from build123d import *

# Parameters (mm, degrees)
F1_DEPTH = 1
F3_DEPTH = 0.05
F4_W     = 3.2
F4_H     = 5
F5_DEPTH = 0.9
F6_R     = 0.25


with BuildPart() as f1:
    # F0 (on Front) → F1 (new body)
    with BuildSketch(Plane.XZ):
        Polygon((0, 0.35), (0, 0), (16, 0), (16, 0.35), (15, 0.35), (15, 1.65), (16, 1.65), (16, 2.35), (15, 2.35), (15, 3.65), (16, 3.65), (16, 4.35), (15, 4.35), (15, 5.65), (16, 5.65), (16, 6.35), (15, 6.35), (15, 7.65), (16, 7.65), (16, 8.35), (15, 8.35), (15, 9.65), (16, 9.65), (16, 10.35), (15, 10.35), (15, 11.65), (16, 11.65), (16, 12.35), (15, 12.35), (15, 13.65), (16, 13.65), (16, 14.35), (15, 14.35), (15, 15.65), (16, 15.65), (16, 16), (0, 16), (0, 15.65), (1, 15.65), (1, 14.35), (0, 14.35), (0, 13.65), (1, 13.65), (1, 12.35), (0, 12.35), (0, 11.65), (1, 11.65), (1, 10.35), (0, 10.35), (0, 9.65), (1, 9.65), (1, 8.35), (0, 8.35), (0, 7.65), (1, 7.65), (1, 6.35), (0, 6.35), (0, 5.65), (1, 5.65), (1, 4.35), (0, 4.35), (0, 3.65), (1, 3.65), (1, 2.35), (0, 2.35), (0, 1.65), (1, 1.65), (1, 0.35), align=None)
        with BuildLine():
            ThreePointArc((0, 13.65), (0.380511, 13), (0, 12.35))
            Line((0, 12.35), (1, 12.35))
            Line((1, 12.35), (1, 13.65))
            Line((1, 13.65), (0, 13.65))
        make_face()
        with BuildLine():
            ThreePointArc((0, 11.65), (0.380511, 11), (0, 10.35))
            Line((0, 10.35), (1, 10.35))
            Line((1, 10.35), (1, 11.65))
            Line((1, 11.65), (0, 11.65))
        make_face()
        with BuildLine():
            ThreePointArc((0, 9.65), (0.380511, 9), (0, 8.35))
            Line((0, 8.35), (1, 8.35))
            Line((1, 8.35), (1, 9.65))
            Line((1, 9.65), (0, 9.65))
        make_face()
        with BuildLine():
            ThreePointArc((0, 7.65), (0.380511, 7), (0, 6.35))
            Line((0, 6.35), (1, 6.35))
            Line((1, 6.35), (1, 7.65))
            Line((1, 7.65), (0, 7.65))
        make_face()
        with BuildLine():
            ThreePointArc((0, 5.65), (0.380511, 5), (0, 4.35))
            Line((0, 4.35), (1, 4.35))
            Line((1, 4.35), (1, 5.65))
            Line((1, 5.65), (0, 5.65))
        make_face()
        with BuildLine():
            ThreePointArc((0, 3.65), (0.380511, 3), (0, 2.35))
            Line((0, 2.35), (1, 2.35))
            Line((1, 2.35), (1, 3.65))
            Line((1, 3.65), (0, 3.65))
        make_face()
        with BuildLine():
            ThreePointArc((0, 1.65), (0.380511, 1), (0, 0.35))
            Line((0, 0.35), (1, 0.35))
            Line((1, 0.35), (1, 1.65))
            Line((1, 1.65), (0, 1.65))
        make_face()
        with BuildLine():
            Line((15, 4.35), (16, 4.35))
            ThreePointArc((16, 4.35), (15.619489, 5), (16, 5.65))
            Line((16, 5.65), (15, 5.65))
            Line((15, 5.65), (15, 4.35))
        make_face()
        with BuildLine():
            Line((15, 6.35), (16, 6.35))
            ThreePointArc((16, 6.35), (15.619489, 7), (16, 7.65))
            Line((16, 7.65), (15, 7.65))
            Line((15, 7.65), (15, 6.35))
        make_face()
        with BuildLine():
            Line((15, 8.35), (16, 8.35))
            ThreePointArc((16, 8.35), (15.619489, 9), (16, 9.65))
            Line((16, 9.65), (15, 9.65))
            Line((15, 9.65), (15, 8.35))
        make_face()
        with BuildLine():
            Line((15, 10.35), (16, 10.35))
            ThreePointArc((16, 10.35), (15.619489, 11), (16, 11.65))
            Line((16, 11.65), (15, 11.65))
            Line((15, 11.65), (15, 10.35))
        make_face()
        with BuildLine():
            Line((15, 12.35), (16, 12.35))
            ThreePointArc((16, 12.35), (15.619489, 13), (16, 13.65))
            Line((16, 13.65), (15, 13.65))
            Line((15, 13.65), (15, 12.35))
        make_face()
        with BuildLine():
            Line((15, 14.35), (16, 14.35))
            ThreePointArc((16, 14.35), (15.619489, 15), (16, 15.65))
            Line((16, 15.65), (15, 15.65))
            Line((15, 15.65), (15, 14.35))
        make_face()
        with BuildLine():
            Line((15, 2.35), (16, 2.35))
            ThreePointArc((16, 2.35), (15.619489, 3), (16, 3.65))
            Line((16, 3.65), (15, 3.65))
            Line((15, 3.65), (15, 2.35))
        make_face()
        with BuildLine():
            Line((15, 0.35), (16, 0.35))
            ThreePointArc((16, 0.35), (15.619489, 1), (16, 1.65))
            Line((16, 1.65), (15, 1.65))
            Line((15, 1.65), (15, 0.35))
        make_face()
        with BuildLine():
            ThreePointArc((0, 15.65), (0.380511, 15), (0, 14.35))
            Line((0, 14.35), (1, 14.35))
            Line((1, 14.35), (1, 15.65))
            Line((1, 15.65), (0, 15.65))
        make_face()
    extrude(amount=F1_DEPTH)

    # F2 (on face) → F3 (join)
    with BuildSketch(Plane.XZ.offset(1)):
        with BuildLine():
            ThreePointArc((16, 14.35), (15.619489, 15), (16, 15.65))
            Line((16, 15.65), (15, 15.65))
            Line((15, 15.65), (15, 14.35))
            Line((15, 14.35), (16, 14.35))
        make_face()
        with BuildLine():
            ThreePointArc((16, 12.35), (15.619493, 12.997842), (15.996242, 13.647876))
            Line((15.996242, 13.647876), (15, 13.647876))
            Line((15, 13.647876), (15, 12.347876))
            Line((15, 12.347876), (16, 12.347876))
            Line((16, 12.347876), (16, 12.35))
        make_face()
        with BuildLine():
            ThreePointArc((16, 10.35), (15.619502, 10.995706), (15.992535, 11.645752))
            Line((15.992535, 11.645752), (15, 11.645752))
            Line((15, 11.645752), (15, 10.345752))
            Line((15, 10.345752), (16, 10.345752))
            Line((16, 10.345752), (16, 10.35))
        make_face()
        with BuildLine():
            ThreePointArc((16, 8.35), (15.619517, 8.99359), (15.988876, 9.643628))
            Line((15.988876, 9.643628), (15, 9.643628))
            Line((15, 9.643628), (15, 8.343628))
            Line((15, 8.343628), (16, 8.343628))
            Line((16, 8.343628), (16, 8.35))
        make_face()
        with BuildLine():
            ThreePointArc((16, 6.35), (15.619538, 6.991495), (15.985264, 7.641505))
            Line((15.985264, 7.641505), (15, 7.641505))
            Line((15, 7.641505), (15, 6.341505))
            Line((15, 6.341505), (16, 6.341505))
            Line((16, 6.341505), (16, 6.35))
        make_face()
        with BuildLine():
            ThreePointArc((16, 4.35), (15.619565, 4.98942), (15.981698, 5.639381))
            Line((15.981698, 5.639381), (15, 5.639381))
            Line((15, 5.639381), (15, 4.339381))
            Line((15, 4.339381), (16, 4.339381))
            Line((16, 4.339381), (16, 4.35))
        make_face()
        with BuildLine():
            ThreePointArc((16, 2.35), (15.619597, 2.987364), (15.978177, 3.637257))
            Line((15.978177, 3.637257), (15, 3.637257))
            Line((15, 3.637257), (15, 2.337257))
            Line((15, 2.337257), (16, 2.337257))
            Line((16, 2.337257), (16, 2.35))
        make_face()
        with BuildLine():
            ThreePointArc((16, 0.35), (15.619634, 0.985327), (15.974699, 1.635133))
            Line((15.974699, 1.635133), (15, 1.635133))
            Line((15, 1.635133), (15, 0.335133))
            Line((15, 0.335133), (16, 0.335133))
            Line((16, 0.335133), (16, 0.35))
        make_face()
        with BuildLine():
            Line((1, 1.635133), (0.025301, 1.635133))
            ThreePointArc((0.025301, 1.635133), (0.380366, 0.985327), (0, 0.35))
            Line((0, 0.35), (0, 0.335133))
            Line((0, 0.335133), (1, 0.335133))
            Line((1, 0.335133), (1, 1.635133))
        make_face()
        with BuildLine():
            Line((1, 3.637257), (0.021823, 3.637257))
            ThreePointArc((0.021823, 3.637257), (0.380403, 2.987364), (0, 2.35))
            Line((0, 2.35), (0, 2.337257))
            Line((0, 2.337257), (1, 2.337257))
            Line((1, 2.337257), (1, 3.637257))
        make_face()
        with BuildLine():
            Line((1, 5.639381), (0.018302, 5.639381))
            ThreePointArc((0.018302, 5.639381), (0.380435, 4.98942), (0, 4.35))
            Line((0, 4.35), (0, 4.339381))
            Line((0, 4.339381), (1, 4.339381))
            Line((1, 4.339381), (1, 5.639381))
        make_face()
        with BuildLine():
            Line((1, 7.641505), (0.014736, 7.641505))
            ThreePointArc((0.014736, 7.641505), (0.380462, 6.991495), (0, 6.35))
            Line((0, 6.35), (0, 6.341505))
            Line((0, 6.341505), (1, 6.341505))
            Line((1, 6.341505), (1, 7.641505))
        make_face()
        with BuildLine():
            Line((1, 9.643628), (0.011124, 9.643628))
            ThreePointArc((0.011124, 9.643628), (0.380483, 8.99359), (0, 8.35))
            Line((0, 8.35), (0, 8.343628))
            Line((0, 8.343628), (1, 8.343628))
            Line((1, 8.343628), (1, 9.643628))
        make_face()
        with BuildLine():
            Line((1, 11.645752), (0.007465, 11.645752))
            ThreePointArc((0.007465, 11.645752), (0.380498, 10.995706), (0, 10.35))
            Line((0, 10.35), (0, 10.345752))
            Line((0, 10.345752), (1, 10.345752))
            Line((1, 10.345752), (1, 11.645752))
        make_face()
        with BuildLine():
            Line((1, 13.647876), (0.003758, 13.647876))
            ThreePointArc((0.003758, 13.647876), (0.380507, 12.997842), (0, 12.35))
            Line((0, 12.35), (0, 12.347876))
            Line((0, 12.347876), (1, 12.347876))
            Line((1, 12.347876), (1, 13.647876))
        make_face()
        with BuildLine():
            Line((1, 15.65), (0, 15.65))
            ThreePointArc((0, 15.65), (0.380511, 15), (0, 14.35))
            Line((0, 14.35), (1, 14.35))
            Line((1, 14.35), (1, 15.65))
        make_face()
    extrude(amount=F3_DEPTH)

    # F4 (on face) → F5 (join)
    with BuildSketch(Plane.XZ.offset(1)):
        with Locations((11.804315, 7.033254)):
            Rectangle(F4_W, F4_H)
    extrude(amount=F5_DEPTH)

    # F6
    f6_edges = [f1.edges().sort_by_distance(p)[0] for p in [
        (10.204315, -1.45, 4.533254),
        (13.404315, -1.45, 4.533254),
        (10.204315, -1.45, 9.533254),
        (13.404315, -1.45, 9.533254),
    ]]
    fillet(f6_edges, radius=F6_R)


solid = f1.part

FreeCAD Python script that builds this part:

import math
import FreeCAD as App
import Part
import Sketcher
from FreeCAD import Vector


def edges_at(feature, points):
    """Names of the edges that pass closest to the given points."""
    edges = feature.Shape.Edges
    near = lambda p: min(range(len(edges)), key=lambda i: edges[i].distToShape(Part.Vertex(*p))[0])
    return sorted({f"Edge{near(p) + 1}" for p in points})

doc = App.newDocument("Part")
body = doc.addObject("PartDesign::Body", "Body")

# Sketch on XZ plane
sketch1 = doc.addObject("Sketcher::SketchObject", "Sketch")
body.addObject(sketch1)
sketch1.AttachmentSupport = (doc.XZ_Plane, [""])
sketch1.MapMode = "FlatFace"
sketch1.addGeometry([
    Part.LineSegment(Vector(0, 0.35, 0), Vector(0, 0, 0)),  # 0
    Part.LineSegment(Vector(0, 0, 0), Vector(16, 0, 0)),  # 1
    Part.LineSegment(Vector(16, 0, 0), Vector(16, 0.35, 0)),  # 2
    Part.ArcOfCircle(Part.Circle(Vector(16.36, 1, 0), Vector(0, 0, 1), 0.75), math.radians(119), math.radians(241)),  # 3
    Part.LineSegment(Vector(16, 1.65, 0), Vector(16, 2.35, 0)),  # 4
    Part.ArcOfCircle(Part.Circle(Vector(16.36, 3, 0), Vector(0, 0, 1), 0.75), math.radians(119), math.radians(241)),  # 5
    Part.LineSegment(Vector(16, 3.65, 0), Vector(16, 4.35, 0)),  # 6
    Part.ArcOfCircle(Part.Circle(Vector(16.36, 5, 0), Vector(0, 0, 1), 0.75), math.radians(119), math.radians(241)),  # 7
    Part.LineSegment(Vector(16, 5.65, 0), Vector(16, 6.35, 0)),  # 8
    Part.ArcOfCircle(Part.Circle(Vector(16.36, 7, 0), Vector(0, 0, 1), 0.75), math.radians(119), math.radians(241)),  # 9
    Part.LineSegment(Vector(16, 7.65, 0), Vector(16, 8.35, 0)),  # 10
    Part.ArcOfCircle(Part.Circle(Vector(16.36, 9, 0), Vector(0, 0, 1), 0.75), math.radians(119), math.radians(241)),  # 11
    Part.LineSegment(Vector(16, 9.65, 0), Vector(16, 10.35, 0)),  # 12
    Part.ArcOfCircle(Part.Circle(Vector(16.36, 11, 0), Vector(0, 0, 1), 0.75), math.radians(119), math.radians(241)),  # 13
    Part.LineSegment(Vector(16, 11.65, 0), Vector(16, 12.35, 0)),  # 14
    Part.ArcOfCircle(Part.Circle(Vector(16.36, 13, 0), Vector(0, 0, 1), 0.75), math.radians(119), math.radians(241)),  # 15
    Part.LineSegment(Vector(16, 13.65, 0), Vector(16, 14.35, 0)),  # 16
    Part.ArcOfCircle(Part.Circle(Vector(16.36, 15, 0), Vector(0, 0, 1), 0.75), math.radians(119), math.radians(241)),  # 17
    Part.LineSegment(Vector(16, 15.65, 0), Vector(16, 16, 0)),  # 18
    Part.LineSegment(Vector(16, 16, 0), Vector(0, 16, 0)),  # 19
    Part.LineSegment(Vector(0, 16, 0), Vector(0, 15.65, 0)),  # 20
    Part.ArcOfCircle(Part.Circle(Vector(-0.36, 15, 0), Vector(0, 0, 1), 0.75), math.radians(-61), math.radians(61)),  # 21
    Part.LineSegment(Vector(0, 14.35, 0), Vector(0, 13.65, 0)),  # 22
    Part.ArcOfCircle(Part.Circle(Vector(-0.36, 13, 0), Vector(0, 0, 1), 0.75), math.radians(-61), math.radians(61)),  # 23
    Part.LineSegment(Vector(0, 12.35, 0), Vector(0, 11.65, 0)),  # 24
    Part.ArcOfCircle(Part.Circle(Vector(-0.36, 11, 0), Vector(0, 0, 1), 0.75), math.radians(-61), math.radians(61)),  # 25
    Part.LineSegment(Vector(0, 10.35, 0), Vector(0, 9.65, 0)),  # 26
    Part.ArcOfCircle(Part.Circle(Vector(-0.36, 9, 0), Vector(0, 0, 1), 0.75), math.radians(-61), math.radians(61)),  # 27
    Part.LineSegment(Vector(0, 8.35, 0), Vector(0, 7.65, 0)),  # 28
    Part.ArcOfCircle(Part.Circle(Vector(-0.36, 7, 0), Vector(0, 0, 1), 0.75), math.radians(-61), math.radians(61)),  # 29
    Part.LineSegment(Vector(0, 6.35, 0), Vector(0, 5.65, 0)),  # 30
    Part.ArcOfCircle(Part.Circle(Vector(-0.36, 5, 0), Vector(0, 0, 1), 0.75), math.radians(-61), math.radians(61)),  # 31
    Part.LineSegment(Vector(0, 4.35, 0), Vector(0, 3.65, 0)),  # 32
    Part.ArcOfCircle(Part.Circle(Vector(-0.36, 3, 0), Vector(0, 0, 1), 0.75), math.radians(-61), math.radians(61)),  # 33
    Part.LineSegment(Vector(0, 2.35, 0), Vector(0, 1.65, 0)),  # 34
    Part.ArcOfCircle(Part.Circle(Vector(-0.36, 1, 0), Vector(0, 0, 1), 0.75), math.radians(-61), math.radians(61)),  # 35
], False)
sketch1.addConstraint([
    Sketcher.Constraint("Coincident", 0, 2, 1, 1),
    Sketcher.Constraint("Coincident", 1, 2, 2, 1),
    Sketcher.Constraint("Coincident", 2, 2, 3, 2),
    Sketcher.Constraint("Coincident", 3, 1, 4, 1),
    Sketcher.Constraint("Coincident", 4, 2, 5, 2),
    Sketcher.Constraint("Coincident", 5, 1, 6, 1),
    Sketcher.Constraint("Coincident", 6, 2, 7, 2),
    Sketcher.Constraint("Coincident", 7, 1, 8, 1),
    Sketcher.Constraint("Coincident", 8, 2, 9, 2),
    Sketcher.Constraint("Coincident", 9, 1, 10, 1),
    Sketcher.Constraint("Coincident", 10, 2, 11, 2),
    Sketcher.Constraint("Coincident", 11, 1, 12, 1),
    Sketcher.Constraint("Coincident", 12, 2, 13, 2),
    Sketcher.Constraint("Coincident", 13, 1, 14, 1),
    Sketcher.Constraint("Coincident", 14, 2, 15, 2),
    Sketcher.Constraint("Coincident", 15, 1, 16, 1),
    Sketcher.Constraint("Coincident", 16, 2, 17, 2),
    Sketcher.Constraint("Coincident", 17, 1, 18, 1),
    Sketcher.Constraint("Coincident", 18, 2, 19, 1),
    Sketcher.Constraint("Coincident", 19, 2, 20, 1),
    Sketcher.Constraint("Coincident", 20, 2, 21, 2),
    Sketcher.Constraint("Coincident", 21, 1, 22, 1),
    Sketcher.Constraint("Coincident", 22, 2, 23, 2),
    Sketcher.Constraint("Coincident", 23, 1, 24, 1),
    Sketcher.Constraint("Coincident", 24, 2, 25, 2),
    Sketcher.Constraint("Coincident", 25, 1, 26, 1),
    Sketcher.Constraint("Coincident", 26, 2, 27, 2),
    Sketcher.Constraint("Coincident", 27, 1, 28, 1),
    Sketcher.Constraint("Coincident", 28, 2, 29, 2),
    Sketcher.Constraint("Coincident", 29, 1, 30, 1),
    Sketcher.Constraint("Coincident", 30, 2, 31, 2),
    Sketcher.Constraint("Coincident", 31, 1, 32, 1),
    Sketcher.Constraint("Coincident", 32, 2, 33, 2),
    Sketcher.Constraint("Coincident", 33, 1, 34, 1),
    Sketcher.Constraint("Coincident", 34, 2, 35, 2),
    Sketcher.Constraint("Coincident", 35, 1, 0, 1),
    Sketcher.Constraint("Vertical", 0),
    Sketcher.Constraint("Horizontal", 1),
    Sketcher.Constraint("Vertical", 2),
    Sketcher.Constraint("Vertical", 4),
    Sketcher.Constraint("Vertical", 6),
    Sketcher.Constraint("Vertical", 8),
    Sketcher.Constraint("Vertical", 10),
    Sketcher.Constraint("Vertical", 12),
    Sketcher.Constraint("Vertical", 14),
    Sketcher.Constraint("Vertical", 16),
    Sketcher.Constraint("Vertical", 18),
    Sketcher.Constraint("Horizontal", 19),
    Sketcher.Constraint("Vertical", 20),
    Sketcher.Constraint("Vertical", 22),
    Sketcher.Constraint("Vertical", 24),
    Sketcher.Constraint("Vertical", 26),
    Sketcher.Constraint("Vertical", 28),
    Sketcher.Constraint("Vertical", 30),
    Sketcher.Constraint("Vertical", 32),
    Sketcher.Constraint("Vertical", 34),
    Sketcher.Constraint("Coincident", 0, 2, -1, 1),
    Sketcher.Constraint("Equal", 3, 5),
    Sketcher.Constraint("Equal", 5, 7),
    Sketcher.Constraint("Equal", 7, 9),
    Sketcher.Constraint("Equal", 9, 11),
    Sketcher.Constraint("Equal", 11, 13),
    Sketcher.Constraint("Equal", 13, 15),
    Sketcher.Constraint("Equal", 15, 17),
    Sketcher.Constraint("Equal", 17, 21),
    Sketcher.Constraint("Equal", 21, 23),
    Sketcher.Constraint("Equal", 23, 25),
    Sketcher.Constraint("Equal", 25, 27),
    Sketcher.Constraint("Equal", 27, 29),
    Sketcher.Constraint("Equal", 29, 31),
    Sketcher.Constraint("Equal", 31, 33),
    Sketcher.Constraint("Equal", 33, 35),
    Sketcher.Constraint("PointOnObject", 19, 2, -2),
    Sketcher.Constraint("PointOnObject", 21, 1, -2),
    Sketcher.Constraint("PointOnObject", 23, 1, -2),
    Sketcher.Constraint("PointOnObject", 25, 1, -2),
    Sketcher.Constraint("PointOnObject", 27, 1, -2),
    Sketcher.Constraint("PointOnObject", 29, 1, -2),
    Sketcher.Constraint("PointOnObject", 31, 1, -2),
    Sketcher.Constraint("PointOnObject", 33, 1, -2),
    Sketcher.Constraint("Horizontal", 17, 3, 21, 3),
    Sketcher.Constraint("Horizontal", 15, 3, 23, 3),
    Sketcher.Constraint("Horizontal", 13, 3, 25, 3),
    Sketcher.Constraint("Horizontal", 11, 3, 27, 3),
    Sketcher.Constraint("Horizontal", 9, 3, 29, 3),
    Sketcher.Constraint("Horizontal", 7, 3, 31, 3),
    Sketcher.Constraint("Horizontal", 5, 3, 33, 3),
    Sketcher.Constraint("Horizontal", 3, 3, 35, 3),
    Sketcher.Constraint("Horizontal", 17, 1, 20, 2),
    Sketcher.Constraint("Horizontal", 16, 2, 21, 1),
    Sketcher.Constraint("Horizontal", 15, 1, 22, 2),
    Sketcher.Constraint("Horizontal", 14, 2, 23, 1),
    Sketcher.Constraint("Horizontal", 13, 1, 24, 2),
    Sketcher.Constraint("Horizontal", 12, 2, 25, 1),
    Sketcher.Constraint("Horizontal", 11, 1, 26, 2),
    Sketcher.Constraint("Horizontal", 10, 2, 27, 1),
    Sketcher.Constraint("Horizontal", 9, 1, 28, 2),
    Sketcher.Constraint("Horizontal", 8, 2, 29, 1),
    Sketcher.Constraint("Horizontal", 7, 1, 30, 2),
    Sketcher.Constraint("Horizontal", 6, 2, 31, 1),
    Sketcher.Constraint("Horizontal", 5, 1, 32, 2),
    Sketcher.Constraint("Horizontal", 4, 2, 33, 1),
    Sketcher.Constraint("Horizontal", 3, 1, 34, 2),
    Sketcher.Constraint("Horizontal", 2, 2, 35, 1),
    Sketcher.Constraint("Vertical", 3, 3, 5, 3),
    Sketcher.Constraint("Vertical", 5, 3, 7, 3),
    Sketcher.Constraint("Vertical", 7, 3, 9, 3),
    Sketcher.Constraint("Vertical", 9, 3, 11, 3),
    Sketcher.Constraint("Vertical", 11, 3, 13, 3),
    Sketcher.Constraint("Vertical", 13, 3, 15, 3),
    Sketcher.Constraint("Vertical", 15, 3, 17, 3),
    Sketcher.Constraint("Equal", 4, 6),
    Sketcher.Constraint("Equal", 6, 8),
    Sketcher.Constraint("Equal", 8, 10),
    Sketcher.Constraint("Equal", 10, 12),
    Sketcher.Constraint("Equal", 12, 14),
    Sketcher.Constraint("Equal", 14, 16),
    Sketcher.Constraint("Equal", 2, 18),
    Sketcher.Constraint("DistanceX", 1, 1, 1, 2, 16.0),
    Sketcher.Constraint("DistanceY", 4, 1, 4, 2, 0.7),
    Sketcher.Constraint("DistanceY", -1, 1, 3, 3, 1.0),
    Sketcher.Constraint("DistanceY", -1, 1, 5, 3, 3.0),
    Sketcher.Constraint("Radius", 3, 0.74543),
])
pad1 = doc.addObject("PartDesign::Pad", "Pad")
body.addObject(pad1)
pad1.Profile = sketch1
pad1.Length = 1

# Sketch on XZ plane
sketch2 = doc.addObject("Sketcher::SketchObject", "Sketch001")
body.addObject(sketch2)
sketch2.AttachmentSupport = (doc.XZ_Plane, [""])
sketch2.MapMode = "FlatFace"
sketch2.AttachmentOffset = App.Placement(Vector(0, 0, 1), App.Rotation())
sketch2.addGeometry([
    Part.ArcOfCircle(Part.Circle(Vector(16.3649, 15, 0), Vector(0, 0, 1), 0.7454), math.radians(119), math.radians(241)),  # 0
    Part.LineSegment(Vector(16, 15.65, 0), Vector(15, 15.65, 0)),  # 1
    Part.LineSegment(Vector(15, 15.65, 0), Vector(15, 14.35, 0)),  # 2
    Part.LineSegment(Vector(15, 14.35, 0), Vector(16, 14.35, 0)),  # 3
    Part.ArcOfCircle(Part.Circle(Vector(16.3649, 13, 0), Vector(0, 0, 1), 0.7454), math.radians(120), math.radians(241)),  # 4
    Part.LineSegment(Vector(15.9962, 13.6479, 0), Vector(15, 13.6479, 0)),  # 5
    Part.LineSegment(Vector(15, 13.6479, 0), Vector(15, 12.3479, 0)),  # 6
    Part.LineSegment(Vector(15, 12.3479, 0), Vector(16, 12.3479, 0)),  # 7
    Part.LineSegment(Vector(16, 12.3479, 0), Vector(16, 12.35, 0)),  # 8
    Part.ArcOfCircle(Part.Circle(Vector(16.3649, 11, 0), Vector(0, 0, 1), 0.7454), math.radians(120), math.radians(241)),  # 9
    Part.LineSegment(Vector(15.9925, 11.6458, 0), Vector(15, 11.6458, 0)),  # 10
    Part.LineSegment(Vector(15, 11.6458, 0), Vector(15, 10.3458, 0)),  # 11
    Part.LineSegment(Vector(15, 10.3458, 0), Vector(16, 10.3458, 0)),  # 12
    Part.LineSegment(Vector(16, 10.3458, 0), Vector(16, 10.35, 0)),  # 13
    Part.ArcOfCircle(Part.Circle(Vector(16.3649, 9, 0), Vector(0, 0, 1), 0.7454), math.radians(120), math.radians(241)),  # 14
    Part.LineSegment(Vector(15.9889, 9.6436, 0), Vector(15, 9.6436, 0)),  # 15
    Part.LineSegment(Vector(15, 9.6436, 0), Vector(15, 8.3436, 0)),  # 16
    Part.LineSegment(Vector(15, 8.3436, 0), Vector(16, 8.3436, 0)),  # 17
    Part.LineSegment(Vector(16, 8.3436, 0), Vector(16, 8.35, 0)),  # 18
    Part.ArcOfCircle(Part.Circle(Vector(16.3649, 7, 0), Vector(0, 0, 1), 0.7454), math.radians(121), math.radians(241)),  # 19
    Part.LineSegment(Vector(15.9853, 7.6415, 0), Vector(15, 7.6415, 0)),  # 20
    Part.LineSegment(Vector(15, 7.6415, 0), Vector(15, 6.3415, 0)),  # 21
    Part.LineSegment(Vector(15, 6.3415, 0), Vector(16, 6.3415, 0)),  # 22
    Part.LineSegment(Vector(16, 6.3415, 0), Vector(16, 6.35, 0)),  # 23
    Part.ArcOfCircle(Part.Circle(Vector(16.3649, 5, 0), Vector(0, 0, 1), 0.7454), math.radians(121), math.radians(241)),  # 24
    Part.LineSegment(Vector(15.9817, 5.6394, 0), Vector(15, 5.6394, 0)),  # 25
    Part.LineSegment(Vector(15, 5.6394, 0), Vector(15, 4.3394, 0)),  # 26
    Part.LineSegment(Vector(15, 4.3394, 0), Vector(16, 4.3394, 0)),  # 27
    Part.LineSegment(Vector(16, 4.3394, 0), Vector(16, 4.35, 0)),  # 28
    Part.ArcOfCircle(Part.Circle(Vector(16.3649, 3, 0), Vector(0, 0, 1), 0.7454), math.radians(121), math.radians(241)),  # 29
    Part.LineSegment(Vector(15.9782, 3.6373, 0), Vector(15, 3.6373, 0)),  # 30
    Part.LineSegment(Vector(15, 3.6373, 0), Vector(15, 2.3373, 0)),  # 31
    Part.LineSegment(Vector(15, 2.3373, 0), Vector(16, 2.3373, 0)),  # 32
    Part.LineSegment(Vector(16, 2.3373, 0), Vector(16, 2.35, 0)),  # 33
    Part.ArcOfCircle(Part.Circle(Vector(16.3649, 1, 0), Vector(0, 0, 1), 0.7454), math.radians(122), math.radians(241)),  # 34
    Part.LineSegment(Vector(15.9747, 1.6351, 0), Vector(15, 1.6351, 0)),  # 35
    Part.LineSegment(Vector(15, 1.6351, 0), Vector(15, 0.3351, 0)),  # 36
    Part.LineSegment(Vector(15, 0.3351, 0), Vector(16, 0.3351, 0)),  # 37
    Part.LineSegment(Vector(16, 0.3351, 0), Vector(16, 0.35, 0)),  # 38
    Part.LineSegment(Vector(1, 1.6351, 0), Vector(0.0253, 1.6351, 0)),  # 39
    Part.ArcOfCircle(Part.Circle(Vector(-0.3649, 1, 0), Vector(0, 0, 1), 0.7454), math.radians(-61), math.radians(58)),  # 40
    Part.LineSegment(Vector(0, 0.35, 0), Vector(0, 0.3351, 0)),  # 41
    Part.LineSegment(Vector(0, 0.3351, 0), Vector(1, 0.3351, 0)),  # 42
    Part.LineSegment(Vector(1, 0.3351, 0), Vector(1, 1.6351, 0)),  # 43
    Part.LineSegment(Vector(1, 3.6373, 0), Vector(0.0218, 3.6373, 0)),  # 44
    Part.ArcOfCircle(Part.Circle(Vector(-0.3649, 3, 0), Vector(0, 0, 1), 0.7454), math.radians(-61), math.radians(59)),  # 45
    Part.LineSegment(Vector(0, 2.35, 0), Vector(0, 2.3373, 0)),  # 46
    Part.LineSegment(Vector(0, 2.3373, 0), Vector(1, 2.3373, 0)),  # 47
    Part.LineSegment(Vector(1, 2.3373, 0), Vector(1, 3.6373, 0)),  # 48
    Part.LineSegment(Vector(1, 5.6394, 0), Vector(0.0183, 5.6394, 0)),  # 49
    Part.ArcOfCircle(Part.Circle(Vector(-0.3649, 5, 0), Vector(0, 0, 1), 0.7454), math.radians(-61), math.radians(59)),  # 50
    Part.LineSegment(Vector(0, 4.35, 0), Vector(0, 4.3394, 0)),  # 51
    Part.LineSegment(Vector(0, 4.3394, 0), Vector(1, 4.3394, 0)),  # 52
    Part.LineSegment(Vector(1, 4.3394, 0), Vector(1, 5.6394, 0)),  # 53
    Part.LineSegment(Vector(1, 7.6415, 0), Vector(0.0147, 7.6415, 0)),  # 54
    Part.ArcOfCircle(Part.Circle(Vector(-0.3649, 7, 0), Vector(0, 0, 1), 0.7454), math.radians(-61), math.radians(59)),  # 55
    Part.LineSegment(Vector(0, 6.35, 0), Vector(0, 6.3415, 0)),  # 56
    Part.LineSegment(Vector(0, 6.3415, 0), Vector(1, 6.3415, 0)),  # 57
    Part.LineSegment(Vector(1, 6.3415, 0), Vector(1, 7.6415, 0)),  # 58
    Part.LineSegment(Vector(1, 9.6436, 0), Vector(0.0111, 9.6436, 0)),  # 59
    Part.ArcOfCircle(Part.Circle(Vector(-0.3649, 9, 0), Vector(0, 0, 1), 0.7454), math.radians(-61), math.radians(60)),  # 60
    Part.LineSegment(Vector(0, 8.35, 0), Vector(0, 8.3436, 0)),  # 61
    Part.LineSegment(Vector(0, 8.3436, 0), Vector(1, 8.3436, 0)),  # 62
    Part.LineSegment(Vector(1, 8.3436, 0), Vector(1, 9.6436, 0)),  # 63
    Part.LineSegment(Vector(1, 11.6458, 0), Vector(0.0075, 11.6458, 0)),  # 64
    Part.ArcOfCircle(Part.Circle(Vector(-0.3649, 11, 0), Vector(0, 0, 1), 0.7454), math.radians(-61), math.radians(60)),  # 65
    Part.LineSegment(Vector(0, 10.35, 0), Vector(0, 10.3458, 0)),  # 66
    Part.LineSegment(Vector(0, 10.3458, 0), Vector(1, 10.3458, 0)),  # 67
    Part.LineSegment(Vector(1, 10.3458, 0), Vector(1, 11.6458, 0)),  # 68
    Part.LineSegment(Vector(1, 13.6479, 0), Vector(0.0038, 13.6479, 0)),  # 69
    Part.ArcOfCircle(Part.Circle(Vector(-0.3649, 13, 0), Vector(0, 0, 1), 0.7454), math.radians(-61), math.radians(60)),  # 70
    Part.LineSegment(Vector(0, 12.35, 0), Vector(0, 12.3479, 0)),  # 71
    Part.LineSegment(Vector(0, 12.3479, 0), Vector(1, 12.3479, 0)),  # 72
    Part.LineSegment(Vector(1, 12.3479, 0), Vector(1, 13.6479, 0)),  # 73
    Part.LineSegment(Vector(1, 15.65, 0), Vector(0, 15.65, 0)),  # 74
    Part.ArcOfCircle(Part.Circle(Vector(-0.3649, 15, 0), Vector(0, 0, 1), 0.7454), math.radians(-61), math.radians(61)),  # 75
    Part.LineSegment(Vector(0, 14.35, 0), Vector(1, 14.35, 0)),  # 76
    Part.LineSegment(Vector(1, 14.35, 0), Vector(1, 15.65, 0)),  # 77
], False)
sketch2.addConstraint([
    Sketcher.Constraint("Coincident", 0, 1, 1, 1),
    Sketcher.Constraint("Coincident", 1, 2, 2, 1),
    Sketcher.Constraint("Coincident", 2, 2, 3, 1),
    Sketcher.Constraint("Coincident", 3, 2, 0, 2),
    Sketcher.Constraint("Coincident", 4, 1, 5, 1),
    Sketcher.Constraint("Coincident", 5, 2, 6, 1),
    Sketcher.Constraint("Coincident", 6, 2, 7, 1),
    Sketcher.Constraint("Coincident", 7, 2, 8, 1),
    Sketcher.Constraint("Coincident", 8, 2, 4, 2),
    Sketcher.Constraint("Coincident", 9, 1, 10, 1),
    Sketcher.Constraint("Coincident", 10, 2, 11, 1),
    Sketcher.Constraint("Coincident", 11, 2, 12, 1),
    Sketcher.Constraint("Coincident", 12, 2, 13, 1),
    Sketcher.Constraint("Coincident", 13, 2, 9, 2),
    Sketcher.Constraint("Coincident", 14, 1, 15, 1),
    Sketcher.Constraint("Coincident", 15, 2, 16, 1),
    Sketcher.Constraint("Coincident", 16, 2, 17, 1),
    Sketcher.Constraint("Coincident", 17, 2, 18, 1),
    Sketcher.Constraint("Coincident", 18, 2, 14, 2),
    Sketcher.Constraint("Coincident", 19, 1, 20, 1),
    Sketcher.Constraint("Coincident", 20, 2, 21, 1),
    Sketcher.Constraint("Coincident", 21, 2, 22, 1),
    Sketcher.Constraint("Coincident", 22, 2, 23, 1),
    Sketcher.Constraint("Coincident", 23, 2, 19, 2),
    Sketcher.Constraint("Coincident", 24, 1, 25, 1),
    Sketcher.Constraint("Coincident", 25, 2, 26, 1),
    Sketcher.Constraint("Coincident", 26, 2, 27, 1),
    Sketcher.Constraint("Coincident", 27, 2, 28, 1),
    Sketcher.Constraint("Coincident", 28, 2, 24, 2),
    Sketcher.Constraint("Coincident", 29, 1, 30, 1),
    Sketcher.Constraint("Coincident", 30, 2, 31, 1),
    Sketcher.Constraint("Coincident", 31, 2, 32, 1),
    Sketcher.Constraint("Coincident", 32, 2, 33, 1),
    Sketcher.Constraint("Coincident", 33, 2, 29, 2),
    Sketcher.Constraint("Coincident", 34, 1, 35, 1),
    Sketcher.Constraint("Coincident", 35, 2, 36, 1),
    Sketcher.Constraint("Coincident", 36, 2, 37, 1),
    Sketcher.Constraint("Coincident", 37, 2, 38, 1),
    Sketcher.Constraint("Coincident", 38, 2, 34, 2),
    Sketcher.Constraint("Coincident", 39, 2, 40, 2),
    Sketcher.Constraint("Coincident", 40, 1, 41, 1),
    Sketcher.Constraint("Coincident", 41, 2, 42, 1),
    Sketcher.Constraint("Coincident", 42, 2, 43, 1),
    Sketcher.Constraint("Coincident", 43, 2, 39, 1),
    Sketcher.Constraint("Coincident", 44, 2, 45, 2),
    Sketcher.Constraint("Coincident", 45, 1, 46, 1),
    Sketcher.Constraint("Coincident", 46, 2, 47, 1),
    Sketcher.Constraint("Coincident", 47, 2, 48, 1),
    Sketcher.Constraint("Coincident", 48, 2, 44, 1),
    Sketcher.Constraint("Coincident", 49, 2, 50, 2),
    Sketcher.Constraint("Coincident", 50, 1, 51, 1),
    Sketcher.Constraint("Coincident", 51, 2, 52, 1),
    Sketcher.Constraint("Coincident", 52, 2, 53, 1),
    Sketcher.Constraint("Coincident", 53, 2, 49, 1),
    Sketcher.Constraint("Coincident", 54, 2, 55, 2),
    Sketcher.Constraint("Coincident", 55, 1, 56, 1),
    Sketcher.Constraint("Coincident", 56, 2, 57, 1),
    Sketcher.Constraint("Coincident", 57, 2, 58, 1),
    Sketcher.Constraint("Coincident", 58, 2, 54, 1),
    Sketcher.Constraint("Coincident", 59, 2, 60, 2),
    Sketcher.Constraint("Coincident", 60, 1, 61, 1),
    Sketcher.Constraint("Coincident", 61, 2, 62, 1),
    Sketcher.Constraint("Coincident", 62, 2, 63, 1),
    Sketcher.Constraint("Coincident", 63, 2, 59, 1),
    Sketcher.Constraint("Coincident", 64, 2, 65, 2),
    Sketcher.Constraint("Coincident", 65, 1, 66, 1),
    Sketcher.Constraint("Coincident", 66, 2, 67, 1),
    Sketcher.Constraint("Coincident", 67, 2, 68, 1),
    Sketcher.Constraint("Coincident", 68, 2, 64, 1),
    Sketcher.Constraint("Coincident", 69, 2, 70, 2),
    Sketcher.Constraint("Coincident", 70, 1, 71, 1),
    Sketcher.Constraint("Coincident", 71, 2, 72, 1),
    Sketcher.Constraint("Coincident", 72, 2, 73, 1),
    Sketcher.Constraint("Coincident", 73, 2, 69, 1),
    Sketcher.Constraint("Coincident", 74, 2, 75, 2),
    Sketcher.Constraint("Coincident", 75, 1, 76, 1),
    Sketcher.Constraint("Coincident", 76, 2, 77, 1),
    Sketcher.Constraint("Coincident", 77, 2, 74, 1),
    Sketcher.Constraint("Horizontal", 1),
    Sketcher.Constraint("Vertical", 2),
    Sketcher.Constraint("Horizontal", 3),
    Sketcher.Constraint("Horizontal", 5),
    Sketcher.Constraint("Vertical", 6),
    Sketcher.Constraint("Horizontal", 7),
    Sketcher.Constraint("Vertical", 8),
    Sketcher.Constraint("Horizontal", 10),
    Sketcher.Constraint("Vertical", 11),
    Sketcher.Constraint("Horizontal", 12),
    Sketcher.Constraint("Vertical", 13),
    Sketcher.Constraint("Horizontal", 15),
    Sketcher.Constraint("Vertical", 16),
    Sketcher.Constraint("Horizontal", 17),
    Sketcher.Constraint("Vertical", 18),
    Sketcher.Constraint("Horizontal", 20),
    Sketcher.Constraint("Vertical", 21),
    Sketcher.Constraint("Horizontal", 22),
    Sketcher.Constraint("Vertical", 23),
    Sketcher.Constraint("Horizontal", 25),
    Sketcher.Constraint("Vertical", 26),
    Sketcher.Constraint("Horizontal", 27),
    Sketcher.Constraint("Vertical", 28),
    Sketcher.Constraint("Horizontal", 30),
    Sketcher.Constraint("Vertical", 31),
    Sketcher.Constraint("Horizontal", 32),
    Sketcher.Constraint("Vertical", 33),
    Sketcher.Constraint("Horizontal", 35),
    Sketcher.Constraint("Vertical", 36),
    Sketcher.Constraint("Horizontal", 37),
    Sketcher.Constraint("Vertical", 38),
    Sketcher.Constraint("Horizontal", 39),
    Sketcher.Constraint("Vertical", 41),
    Sketcher.Constraint("Horizontal", 42),
    Sketcher.Constraint("Vertical", 43),
    Sketcher.Constraint("Horizontal", 44),
    Sketcher.Constraint("Vertical", 46),
    Sketcher.Constraint("Horizontal", 47),
    Sketcher.Constraint("Vertical", 48),
    Sketcher.Constraint("Horizontal", 49),
    Sketcher.Constraint("Vertical", 51),
    Sketcher.Constraint("Horizontal", 52),
    Sketcher.Constraint("Vertical", 53),
    Sketcher.Constraint("Horizontal", 54),
    Sketcher.Constraint("Vertical", 56),
    Sketcher.Constraint("Horizontal", 57),
    Sketcher.Constraint("Vertical", 58),
    Sketcher.Constraint("Horizontal", 59),
    Sketcher.Constraint("Vertical", 61),
    Sketcher.Constraint("Horizontal", 62),
    Sketcher.Constraint("Vertical", 63),
    Sketcher.Constraint("Horizontal", 64),
    Sketcher.Constraint("Vertical", 66),
    Sketcher.Constraint("Horizontal", 67),
    Sketcher.Constraint("Vertical", 68),
    Sketcher.Constraint("Horizontal", 69),
    Sketcher.Constraint("Vertical", 71),
    Sketcher.Constraint("Horizontal", 72),
    Sketcher.Constraint("Vertical", 73),
    Sketcher.Constraint("Horizontal", 74),
    Sketcher.Constraint("Horizontal", 76),
    Sketcher.Constraint("Vertical", 77),
    Sketcher.Constraint("Equal", 0, 4),
    Sketcher.Constraint("Equal", 4, 9),
    Sketcher.Constraint("Equal", 9, 14),
    Sketcher.Constraint("Equal", 14, 19),
    Sketcher.Constraint("Equal", 19, 24),
    Sketcher.Constraint("Equal", 24, 29),
    Sketcher.Constraint("Equal", 29, 34),
    Sketcher.Constraint("Equal", 34, 40),
    Sketcher.Constraint("Equal", 40, 45),
    Sketcher.Constraint("Equal", 45, 50),
    Sketcher.Constraint("Equal", 50, 55),
    Sketcher.Constraint("Equal", 55, 60),
    Sketcher.Constraint("Equal", 60, 65),
    Sketcher.Constraint("Equal", 65, 70),
    Sketcher.Constraint("Equal", 70, 75),
    Sketcher.Constraint("PointOnObject", 40, 1, -2),
    Sketcher.Constraint("PointOnObject", 45, 1, -2),
    Sketcher.Constraint("PointOnObject", 50, 1, -2),
    Sketcher.Constraint("PointOnObject", 55, 1, -2),
    Sketcher.Constraint("PointOnObject", 60, 1, -2),
    Sketcher.Constraint("PointOnObject", 65, 1, -2),
    Sketcher.Constraint("PointOnObject", 70, 1, -2),
    Sketcher.Constraint("PointOnObject", 74, 2, -2),
    Sketcher.Constraint("PointOnObject", 75, 1, -2),
    Sketcher.Constraint("Horizontal", 34, 3, 40, 3),
    Sketcher.Constraint("Horizontal", 29, 3, 45, 3),
    Sketcher.Constraint("Horizontal", 24, 3, 50, 3),
    Sketcher.Constraint("Horizontal", 19, 3, 55, 3),
    Sketcher.Constraint("Horizontal", 14, 3, 60, 3),
    Sketcher.Constraint("Horizontal", 9, 3, 65, 3),
    Sketcher.Constraint("Horizontal", 4, 3, 70, 3),
    Sketcher.Constraint("Horizontal", 0, 3, 75, 3),
    Sketcher.Constraint("Horizontal", 35, 2, 39, 2),
    Sketcher.Constraint("Horizontal", 38, 2, 40, 1),
    Sketcher.Constraint("Horizontal", 37, 2, 41, 2),
    Sketcher.Constraint("Horizontal", 30, 2, 44, 2),
    Sketcher.Constraint("Horizontal", 33, 2, 45, 1),
    Sketcher.Constraint("Horizontal", 32, 2, 46, 2),
    Sketcher.Constraint("Horizontal", 25, 2, 49, 2),
    Sketcher.Constraint("Horizontal", 28, 2, 50, 1),
    Sketcher.Constraint("Horizontal", 27, 2, 51, 2),
    Sketcher.Constraint("Horizontal", 20, 2, 54, 2),
    Sketcher.Constraint("Horizontal", 23, 2, 55, 1),
    Sketcher.Constraint("Horizontal", 22, 2, 56, 2),
    Sketcher.Constraint("Horizontal", 15, 2, 59, 2),
    Sketcher.Constraint("Horizontal", 18, 2, 60, 1),
    Sketcher.Constraint("Horizontal", 17, 2, 61, 2),
    Sketcher.Constraint("Horizontal", 10, 2, 64, 2),
    Sketcher.Constraint("Horizontal", 13, 2, 65, 1),
    Sketcher.Constraint("Horizontal", 12, 2, 66, 2),
    Sketcher.Constraint("Horizontal", 5, 2, 69, 2),
    Sketcher.Constraint("Horizontal", 8, 2, 70, 1),
    Sketcher.Constraint("Horizontal", 7, 2, 71, 2),
    Sketcher.Constraint("Horizontal", 1, 2, 74, 2),
    Sketcher.Constraint("Horizontal", 3, 2, 75, 1),
    Sketcher.Constraint("Vertical", 0, 3, 4, 3),
    Sketcher.Constraint("Vertical", 4, 3, 9, 3),
    Sketcher.Constraint("Vertical", 9, 3, 14, 3),
    Sketcher.Constraint("Vertical", 14, 3, 19, 3),
    Sketcher.Constraint("Vertical", 19, 3, 24, 3),
    Sketcher.Constraint("Vertical", 24, 3, 29, 3),
    Sketcher.Constraint("Vertical", 29, 3, 34, 3),
    Sketcher.Constraint("Vertical", 40, 3, 45, 3),
    Sketcher.Constraint("Vertical", 45, 3, 50, 3),
    Sketcher.Constraint("Vertical", 50, 3, 55, 3),
    Sketcher.Constraint("Vertical", 55, 3, 60, 3),
    Sketcher.Constraint("Vertical", 60, 3, 65, 3),
    Sketcher.Constraint("Vertical", 65, 3, 70, 3),
    Sketcher.Constraint("Vertical", 70, 3, 75, 3),
    Sketcher.Constraint("Vertical", 2, 2, 5, 2),
    Sketcher.Constraint("Vertical", 6, 2, 10, 2),
    Sketcher.Constraint("Vertical", 11, 2, 15, 2),
    Sketcher.Constraint("Vertical", 16, 2, 20, 2),
    Sketcher.Constraint("Vertical", 21, 2, 25, 2),
    Sketcher.Constraint("Vertical", 26, 2, 30, 2),
    Sketcher.Constraint("Vertical", 31, 2, 35, 2),
    Sketcher.Constraint("Vertical", 43, 2, 47, 2),
    Sketcher.Constraint("Vertical", 48, 2, 52, 2),
    Sketcher.Constraint("Vertical", 53, 2, 57, 2),
    Sketcher.Constraint("Vertical", 58, 2, 62, 2),
    Sketcher.Constraint("Vertical", 63, 2, 67, 2),
    Sketcher.Constraint("Vertical", 68, 2, 72, 2),
    Sketcher.Constraint("Vertical", 73, 2, 76, 2),
    Sketcher.Constraint("Equal", 35, 39),
    Sketcher.Constraint("Equal", 2, 6),
    Sketcher.Constraint("Equal", 6, 11),
    Sketcher.Constraint("Equal", 11, 16),
    Sketcher.Constraint("Equal", 16, 21),
    Sketcher.Constraint("Equal", 21, 26),
    Sketcher.Constraint("Equal", 26, 31),
    Sketcher.Constraint("Equal", 31, 36),
    Sketcher.Constraint("DistanceX", 1, 2, 1, 1, 1.0),
    Sketcher.Constraint("DistanceY", 2, 2, 2, 1, 1.3),
    Sketcher.Constraint("DistanceY", -1, 1, 0, 3, 15.0),
    Sketcher.Constraint("DistanceY", -1, 1, 4, 3, 13.0),
    Sketcher.Constraint("DistanceY", -1, 1, 9, 3, 11.0),
    Sketcher.Constraint("DistanceY", -1, 1, 14, 3, 9.0),
    Sketcher.Constraint("DistanceY", -1, 1, 19, 3, 7.0),
    Sketcher.Constraint("DistanceY", -1, 1, 24, 3, 5.0),
    Sketcher.Constraint("DistanceY", -1, 1, 29, 3, 3.0),
    Sketcher.Constraint("DistanceY", -1, 1, 34, 3, 1.0),
    Sketcher.Constraint("DistanceX", -1, 1, 0, 1, 16.0),
    Sketcher.Constraint("Radius", 0, 0.74543),
    Sketcher.Constraint("DistanceX", 35, 2, 35, 1, 0.974699),
    Sketcher.Constraint("DistanceX", 69, 2, 69, 1, 0.996242),
    Sketcher.Constraint("DistanceY", 13, 1, 13, 2, 0.004248),
    Sketcher.Constraint("DistanceY", 18, 1, 18, 2, 0.006372),
    Sketcher.Constraint("DistanceY", 28, 1, 28, 2, 0.010619),
    Sketcher.Constraint("DistanceX", 20, 2, 20, 1, 0.985264),
    Sketcher.Constraint("DistanceX", 30, 2, 30, 1, 0.978177),
])
pad2 = doc.addObject("PartDesign::Pad", "Pad001")
body.addObject(pad2)
pad2.Profile = sketch2
pad2.Length = 0.05

# Sketch on XZ plane
sketch3 = doc.addObject("Sketcher::SketchObject", "Sketch002")
body.addObject(sketch3)
sketch3.AttachmentSupport = (doc.XZ_Plane, [""])
sketch3.MapMode = "FlatFace"
sketch3.AttachmentOffset = App.Placement(Vector(0, 0, 1), App.Rotation())
sketch3.addGeometry([
    Part.LineSegment(Vector(10.2, 9.5, 0), Vector(10.2, 4.5, 0)),
    Part.LineSegment(Vector(10.2, 4.5, 0), Vector(13.4, 4.5, 0)),
    Part.LineSegment(Vector(13.4, 4.5, 0), Vector(13.4, 9.5, 0)),
    Part.LineSegment(Vector(13.4, 9.5, 0), Vector(10.2, 9.5, 0)),
], False)
sketch3.addConstraint([
    Sketcher.Constraint("Coincident", 0, 2, 1, 1),
    Sketcher.Constraint("Coincident", 1, 2, 2, 1),
    Sketcher.Constraint("Coincident", 2, 2, 3, 1),
    Sketcher.Constraint("Coincident", 3, 2, 0, 1),
    Sketcher.Constraint("Vertical", 0),
    Sketcher.Constraint("Horizontal", 1),
    Sketcher.Constraint("Vertical", 2),
    Sketcher.Constraint("Horizontal", 3),
    Sketcher.Constraint("DistanceY", 0, 2, 0, 1, 5.0),
    Sketcher.Constraint("DistanceX", 1, 1, 1, 2, 3.2),
    Sketcher.Constraint("DistanceX", -1, 1, 0, 2, 10.204315),
    Sketcher.Constraint("DistanceY", -1, 1, 0, 2, 4.533254),
])
pad3 = doc.addObject("PartDesign::Pad", "Pad002")
body.addObject(pad3)
pad3.Profile = sketch3
pad3.Length = 0.9
doc.recompute()

fillet = doc.addObject("PartDesign::Fillet", "Fillet")
body.addObject(fillet)
fillet.Base = (pad3, edges_at(pad3, [
    (10.204, -1.45, 4.533),
    (13.404, -1.45, 4.533),
    (10.204, -1.45, 9.533),
    (13.404, -1.45, 9.533),
]))
fillet.Radius = 0.25

doc.recompute()
